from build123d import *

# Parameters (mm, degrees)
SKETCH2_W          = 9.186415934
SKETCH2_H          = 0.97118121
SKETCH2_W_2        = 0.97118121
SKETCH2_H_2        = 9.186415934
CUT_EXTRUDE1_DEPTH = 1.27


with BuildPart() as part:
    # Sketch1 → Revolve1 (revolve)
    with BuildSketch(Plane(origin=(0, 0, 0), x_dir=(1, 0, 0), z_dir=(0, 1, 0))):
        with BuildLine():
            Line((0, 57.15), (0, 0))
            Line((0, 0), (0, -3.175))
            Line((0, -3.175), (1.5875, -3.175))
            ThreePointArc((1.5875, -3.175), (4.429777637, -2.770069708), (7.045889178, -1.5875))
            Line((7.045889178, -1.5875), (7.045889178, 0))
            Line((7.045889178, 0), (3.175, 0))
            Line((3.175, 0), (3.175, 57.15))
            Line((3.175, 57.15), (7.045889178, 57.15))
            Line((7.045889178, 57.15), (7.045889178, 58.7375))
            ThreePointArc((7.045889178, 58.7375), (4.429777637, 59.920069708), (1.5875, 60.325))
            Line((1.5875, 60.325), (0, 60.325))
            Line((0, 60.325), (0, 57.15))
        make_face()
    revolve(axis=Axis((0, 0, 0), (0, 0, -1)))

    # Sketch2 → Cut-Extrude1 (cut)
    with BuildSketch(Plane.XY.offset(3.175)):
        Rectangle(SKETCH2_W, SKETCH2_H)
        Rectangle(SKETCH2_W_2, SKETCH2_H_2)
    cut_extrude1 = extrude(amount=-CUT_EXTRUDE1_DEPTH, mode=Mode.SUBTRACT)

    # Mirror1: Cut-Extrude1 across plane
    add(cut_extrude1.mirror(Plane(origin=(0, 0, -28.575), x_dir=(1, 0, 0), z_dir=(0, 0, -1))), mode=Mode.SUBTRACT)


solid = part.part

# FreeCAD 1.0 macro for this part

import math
import FreeCAD as App
import Part
import Sketcher
Q = App.Units.Quantity

doc = App.newDocument("Part")
body = doc.addObject("PartDesign::Body", "Body")

# Sketch on XZ plane
sketch1 = body.newObject("Sketcher::SketchObject", "Sketch")
sketch1.AttachmentSupport = (doc.getObject("XZ_Plane"), [""])
sketch1.MapMode = "FlatFace"
sketch1.addGeometry([
    Part.LineSegment(App.Vector(0, 3.2, 0), App.Vector(1.6, 3.2, 0)),  # 0
    Part.ArcOfCircle(Part.Circle(App.Vector(1.6, -7, 0), App.Vector(0, 0, 1), 10.2), math.radians(58), math.radians(90)),  # 1
    Part.LineSegment(App.Vector(7, 1.6, 0), App.Vector(7, 0, 0)),  # 2
    Part.LineSegment(App.Vector(7, 0, 0), App.Vector(3.2, 0, 0)),  # 3
    Part.LineSegment(App.Vector(3.2, 0, 0), App.Vector(3.2, -57.1, 0)),  # 4
    Part.LineSegment(App.Vector(3.2, -57.1, 0), App.Vector(7, -57.1, 0)),  # 5
    Part.LineSegment(App.Vector(7, -57.1, 0), App.Vector(7, -58.7, 0)),  # 6
    Part.ArcOfCircle(Part.Circle(App.Vector(1.6, -50.1, 0), App.Vector(0, 0, 1), 10.2), math.radians(-90), math.radians(-58)),  # 7
    Part.LineSegment(App.Vector(1.6, -60.3, 0), App.Vector(0, -60.3, 0)),  # 8
    Part.LineSegment(App.Vector(0, -60.3, 0), App.Vector(0, 3.2, 0)),  # 9
], False)
sketch1.addConstraint([
    Sketcher.Constraint("Tangent", 0, 2, 1, 2),
    Sketcher.Constraint("Coincident", 1, 1, 2, 1),
    Sketcher.Constraint("Coincident", 2, 2, 3, 1),
    Sketcher.Constraint("Coincident", 3, 2, 4, 1),
    Sketcher.Constraint("Coincident", 4, 2, 5, 1),
    Sketcher.Constraint("Coincident", 5, 2, 6, 1),
    Sketcher.Constraint("Coincident", 6, 2, 7, 2),
    Sketcher.Constraint("Tangent", 7, 1, 8, 1),
    Sketcher.Constraint("Coincident", 8, 2, 9, 1),
    Sketcher.Constraint("Coincident", 9, 2, 0, 1),
    Sketcher.Constraint("Horizontal", 0),
    Sketcher.Constraint("Vertical", 2),
    Sketcher.Constraint("Horizontal", 3),
    Sketcher.Constraint("Vertical", 4),
    Sketcher.Constraint("Horizontal", 5),
    Sketcher.Constraint("Vertical", 6),
    Sketcher.Constraint("Horizontal", 8),
    Sketcher.Constraint("Vertical", 9),
    Sketcher.Constraint("Equal", 1, 7),
    Sketcher.Constraint("PointOnObject", 2, 2, -1),
    Sketcher.Constraint("PointOnObject", 8, 2, -2),
    Sketcher.Constraint("Vertical", 1, 3, 7, 3),
    Sketcher.Constraint("Vertical", 2, 2, 5, 2),
    Sketcher.Constraint("Equal", 8, 2),
    Sketcher.Constraint("Equal", 2, 6),
    Sketcher.Constraint("DistanceY", 9, 1, 9, 2, Q("2.5 in")),
    Sketcher.Constraint("DistanceY", 4, 2, 4, 1, Q("2.25 in")),
    Sketcher.Constraint("DistanceX", 0, 1, 0, 2, Q("0.0625 in")),
    Sketcher.Constraint("DistanceX", -1, 1, 3, 2, Q("0.125 in")),
    Sketcher.Constraint("Radius", 1, 10.177691),
])
revolution = body.newObject("PartDesign::Revolution", "Revolution")
revolution.Profile = sketch1
revolution.ReferenceAxis = (sketch1, ["V_Axis"])
revolution.Angle = 360

# Sketch on XY plane
sketch2 = body.newObject("Sketcher::SketchObject", "Sketch001")
sketch2.AttachmentSupport = (doc.getObject("XY_Plane"), [""])
sketch2.MapMode = "FlatFace"
sketch2.AttachmentOffset = App.Placement(App.Vector(0, 0, 0.125 * 25.4), App.Rotation())
sketch2.addGeometry([
    Part.LineSegment(App.Vector(-4.6, 0.5, 0), App.Vector(-4.6, -0.5, 0)),  # 0
    Part.LineSegment(App.Vector(-4.6, -0.5, 0), App.Vector(-0.5, -0.5, 0)),  # 1
    Part.LineSegment(App.Vector(-0.5, -0.5, 0), App.Vector(-0.5, -4.6, 0)),  # 2
    Part.LineSegment(App.Vector(-0.5, -4.6, 0), App.Vector(0.5, -4.6, 0)),  # 3
    Part.LineSegment(App.Vector(0.5, -4.6, 0), App.Vector(0.5, -0.5, 0)),  # 4
    Part.LineSegment(App.Vector(0.5, -0.5, 0), App.Vector(4.6, -0.5, 0)),  # 5
    Part.LineSegment(App.Vector(4.6, -0.5, 0), App.Vector(4.6, 0.5, 0)),  # 6
    Part.LineSegment(App.Vector(4.6, 0.5, 0), App.Vector(0.5, 0.5, 0)),  # 7
    Part.LineSegment(App.Vector(0.5, 0.5, 0), App.Vector(0.5, 4.6, 0)),  # 8
    Part.LineSegment(App.Vector(0.5, 4.6, 0), App.Vector(-0.5, 4.6, 0)),  # 9
    Part.LineSegment(App.Vector(-0.5, 4.6, 0), App.Vector(-0.5, 0.5, 0)),  # 10
    Part.LineSegment(App.Vector(-0.5, 0.5, 0), App.Vector(-4.6, 0.5, 0)),  # 11
], False)
sketch2.addConstraint([
    Sketcher.Constraint("Coincident", 0, 2, 1, 1),
    Sketcher.Constraint("Coincident", 1, 2, 2, 1),
    Sketcher.Constraint("Coincident", 2, 2, 3, 1),
    Sketcher.Constraint("Coincident", 3, 2, 4, 1),
    Sketcher.Constraint("Coincident", 4, 2, 5, 1),
    Sketcher.Constraint("Coincident", 5, 2, 6, 1),
    Sketcher.Constraint("Coincident", 6, 2, 7, 1),
    Sketcher.Constraint("Coincident", 7, 2, 8, 1),
    Sketcher.Constraint("Coincident", 8, 2, 9, 1),
    Sketcher.Constraint("Coincident", 9, 2, 10, 1),
    Sketcher.Constraint("Coincident", 10, 2, 11, 1),
    Sketcher.Constraint("Coincident", 11, 2, 0, 1),
    Sketcher.Constraint("Vertical", 0),
    Sketcher.Constraint("Horizontal", 1),
    Sketcher.Constraint("Vertical", 2),
    Sketcher.Constraint("Horizontal", 3),
    Sketcher.Constraint("Vertical", 4),
    Sketcher.Constraint("Horizontal", 5),
    Sketcher.Constraint("Vertical", 6),
    Sketcher.Constraint("Horizontal", 7),
    Sketcher.Constraint("Vertical", 8),
    Sketcher.Constraint("Horizontal", 9),
    Sketcher.Constraint("Vertical", 10),
    Sketcher.Constraint("Horizontal", 11),
    Sketcher.Constraint("Symmetric", 0, 2, 6, 2, -1, 1),
    Sketcher.Constraint("Symmetric", 2, 2, 8, 2, -1, 1),
    Sketcher.Constraint("Symmetric", 4, 2, 10, 2, -1, 1),
    Sketcher.Constraint("Symmetric", 1, 2, 4, 2, -2),
    Sketcher.Constraint("Equal", 9, 0),
    Sketcher.Constraint("Equal", 11, 2),
    Sketcher.Constraint("DistanceX", 3, 1, 3, 2, 0.971181),
    Sketcher.Constraint("DistanceX", 0, 2, 3, 2, 5.078799),
])
pocket1 = body.newObject("PartDesign::Pocket", "Pocket")
pocket1.Profile = sketch2
pocket1.Length = Q("0.05 in")
doc.recompute()

datumplane = body.newObject("PartDesign::Plane", "DatumPlane")
datumplane.AttachmentSupport = (doc.getObject("XY_Plane"), [""])
datumplane.MapMode = "FlatFace"
datumplane.AttachmentOffset = App.Placement(App.Vector(0, 0, -1.125 * 25.4), App.Rotation())
mirrored = body.newObject("PartDesign::Mirrored", "Mirrored")
mirrored.Originals = [pocket1]
mirrored.MirrorPlane = (datumplane, [""])
body.Tip = mirrored

doc.recompute()
